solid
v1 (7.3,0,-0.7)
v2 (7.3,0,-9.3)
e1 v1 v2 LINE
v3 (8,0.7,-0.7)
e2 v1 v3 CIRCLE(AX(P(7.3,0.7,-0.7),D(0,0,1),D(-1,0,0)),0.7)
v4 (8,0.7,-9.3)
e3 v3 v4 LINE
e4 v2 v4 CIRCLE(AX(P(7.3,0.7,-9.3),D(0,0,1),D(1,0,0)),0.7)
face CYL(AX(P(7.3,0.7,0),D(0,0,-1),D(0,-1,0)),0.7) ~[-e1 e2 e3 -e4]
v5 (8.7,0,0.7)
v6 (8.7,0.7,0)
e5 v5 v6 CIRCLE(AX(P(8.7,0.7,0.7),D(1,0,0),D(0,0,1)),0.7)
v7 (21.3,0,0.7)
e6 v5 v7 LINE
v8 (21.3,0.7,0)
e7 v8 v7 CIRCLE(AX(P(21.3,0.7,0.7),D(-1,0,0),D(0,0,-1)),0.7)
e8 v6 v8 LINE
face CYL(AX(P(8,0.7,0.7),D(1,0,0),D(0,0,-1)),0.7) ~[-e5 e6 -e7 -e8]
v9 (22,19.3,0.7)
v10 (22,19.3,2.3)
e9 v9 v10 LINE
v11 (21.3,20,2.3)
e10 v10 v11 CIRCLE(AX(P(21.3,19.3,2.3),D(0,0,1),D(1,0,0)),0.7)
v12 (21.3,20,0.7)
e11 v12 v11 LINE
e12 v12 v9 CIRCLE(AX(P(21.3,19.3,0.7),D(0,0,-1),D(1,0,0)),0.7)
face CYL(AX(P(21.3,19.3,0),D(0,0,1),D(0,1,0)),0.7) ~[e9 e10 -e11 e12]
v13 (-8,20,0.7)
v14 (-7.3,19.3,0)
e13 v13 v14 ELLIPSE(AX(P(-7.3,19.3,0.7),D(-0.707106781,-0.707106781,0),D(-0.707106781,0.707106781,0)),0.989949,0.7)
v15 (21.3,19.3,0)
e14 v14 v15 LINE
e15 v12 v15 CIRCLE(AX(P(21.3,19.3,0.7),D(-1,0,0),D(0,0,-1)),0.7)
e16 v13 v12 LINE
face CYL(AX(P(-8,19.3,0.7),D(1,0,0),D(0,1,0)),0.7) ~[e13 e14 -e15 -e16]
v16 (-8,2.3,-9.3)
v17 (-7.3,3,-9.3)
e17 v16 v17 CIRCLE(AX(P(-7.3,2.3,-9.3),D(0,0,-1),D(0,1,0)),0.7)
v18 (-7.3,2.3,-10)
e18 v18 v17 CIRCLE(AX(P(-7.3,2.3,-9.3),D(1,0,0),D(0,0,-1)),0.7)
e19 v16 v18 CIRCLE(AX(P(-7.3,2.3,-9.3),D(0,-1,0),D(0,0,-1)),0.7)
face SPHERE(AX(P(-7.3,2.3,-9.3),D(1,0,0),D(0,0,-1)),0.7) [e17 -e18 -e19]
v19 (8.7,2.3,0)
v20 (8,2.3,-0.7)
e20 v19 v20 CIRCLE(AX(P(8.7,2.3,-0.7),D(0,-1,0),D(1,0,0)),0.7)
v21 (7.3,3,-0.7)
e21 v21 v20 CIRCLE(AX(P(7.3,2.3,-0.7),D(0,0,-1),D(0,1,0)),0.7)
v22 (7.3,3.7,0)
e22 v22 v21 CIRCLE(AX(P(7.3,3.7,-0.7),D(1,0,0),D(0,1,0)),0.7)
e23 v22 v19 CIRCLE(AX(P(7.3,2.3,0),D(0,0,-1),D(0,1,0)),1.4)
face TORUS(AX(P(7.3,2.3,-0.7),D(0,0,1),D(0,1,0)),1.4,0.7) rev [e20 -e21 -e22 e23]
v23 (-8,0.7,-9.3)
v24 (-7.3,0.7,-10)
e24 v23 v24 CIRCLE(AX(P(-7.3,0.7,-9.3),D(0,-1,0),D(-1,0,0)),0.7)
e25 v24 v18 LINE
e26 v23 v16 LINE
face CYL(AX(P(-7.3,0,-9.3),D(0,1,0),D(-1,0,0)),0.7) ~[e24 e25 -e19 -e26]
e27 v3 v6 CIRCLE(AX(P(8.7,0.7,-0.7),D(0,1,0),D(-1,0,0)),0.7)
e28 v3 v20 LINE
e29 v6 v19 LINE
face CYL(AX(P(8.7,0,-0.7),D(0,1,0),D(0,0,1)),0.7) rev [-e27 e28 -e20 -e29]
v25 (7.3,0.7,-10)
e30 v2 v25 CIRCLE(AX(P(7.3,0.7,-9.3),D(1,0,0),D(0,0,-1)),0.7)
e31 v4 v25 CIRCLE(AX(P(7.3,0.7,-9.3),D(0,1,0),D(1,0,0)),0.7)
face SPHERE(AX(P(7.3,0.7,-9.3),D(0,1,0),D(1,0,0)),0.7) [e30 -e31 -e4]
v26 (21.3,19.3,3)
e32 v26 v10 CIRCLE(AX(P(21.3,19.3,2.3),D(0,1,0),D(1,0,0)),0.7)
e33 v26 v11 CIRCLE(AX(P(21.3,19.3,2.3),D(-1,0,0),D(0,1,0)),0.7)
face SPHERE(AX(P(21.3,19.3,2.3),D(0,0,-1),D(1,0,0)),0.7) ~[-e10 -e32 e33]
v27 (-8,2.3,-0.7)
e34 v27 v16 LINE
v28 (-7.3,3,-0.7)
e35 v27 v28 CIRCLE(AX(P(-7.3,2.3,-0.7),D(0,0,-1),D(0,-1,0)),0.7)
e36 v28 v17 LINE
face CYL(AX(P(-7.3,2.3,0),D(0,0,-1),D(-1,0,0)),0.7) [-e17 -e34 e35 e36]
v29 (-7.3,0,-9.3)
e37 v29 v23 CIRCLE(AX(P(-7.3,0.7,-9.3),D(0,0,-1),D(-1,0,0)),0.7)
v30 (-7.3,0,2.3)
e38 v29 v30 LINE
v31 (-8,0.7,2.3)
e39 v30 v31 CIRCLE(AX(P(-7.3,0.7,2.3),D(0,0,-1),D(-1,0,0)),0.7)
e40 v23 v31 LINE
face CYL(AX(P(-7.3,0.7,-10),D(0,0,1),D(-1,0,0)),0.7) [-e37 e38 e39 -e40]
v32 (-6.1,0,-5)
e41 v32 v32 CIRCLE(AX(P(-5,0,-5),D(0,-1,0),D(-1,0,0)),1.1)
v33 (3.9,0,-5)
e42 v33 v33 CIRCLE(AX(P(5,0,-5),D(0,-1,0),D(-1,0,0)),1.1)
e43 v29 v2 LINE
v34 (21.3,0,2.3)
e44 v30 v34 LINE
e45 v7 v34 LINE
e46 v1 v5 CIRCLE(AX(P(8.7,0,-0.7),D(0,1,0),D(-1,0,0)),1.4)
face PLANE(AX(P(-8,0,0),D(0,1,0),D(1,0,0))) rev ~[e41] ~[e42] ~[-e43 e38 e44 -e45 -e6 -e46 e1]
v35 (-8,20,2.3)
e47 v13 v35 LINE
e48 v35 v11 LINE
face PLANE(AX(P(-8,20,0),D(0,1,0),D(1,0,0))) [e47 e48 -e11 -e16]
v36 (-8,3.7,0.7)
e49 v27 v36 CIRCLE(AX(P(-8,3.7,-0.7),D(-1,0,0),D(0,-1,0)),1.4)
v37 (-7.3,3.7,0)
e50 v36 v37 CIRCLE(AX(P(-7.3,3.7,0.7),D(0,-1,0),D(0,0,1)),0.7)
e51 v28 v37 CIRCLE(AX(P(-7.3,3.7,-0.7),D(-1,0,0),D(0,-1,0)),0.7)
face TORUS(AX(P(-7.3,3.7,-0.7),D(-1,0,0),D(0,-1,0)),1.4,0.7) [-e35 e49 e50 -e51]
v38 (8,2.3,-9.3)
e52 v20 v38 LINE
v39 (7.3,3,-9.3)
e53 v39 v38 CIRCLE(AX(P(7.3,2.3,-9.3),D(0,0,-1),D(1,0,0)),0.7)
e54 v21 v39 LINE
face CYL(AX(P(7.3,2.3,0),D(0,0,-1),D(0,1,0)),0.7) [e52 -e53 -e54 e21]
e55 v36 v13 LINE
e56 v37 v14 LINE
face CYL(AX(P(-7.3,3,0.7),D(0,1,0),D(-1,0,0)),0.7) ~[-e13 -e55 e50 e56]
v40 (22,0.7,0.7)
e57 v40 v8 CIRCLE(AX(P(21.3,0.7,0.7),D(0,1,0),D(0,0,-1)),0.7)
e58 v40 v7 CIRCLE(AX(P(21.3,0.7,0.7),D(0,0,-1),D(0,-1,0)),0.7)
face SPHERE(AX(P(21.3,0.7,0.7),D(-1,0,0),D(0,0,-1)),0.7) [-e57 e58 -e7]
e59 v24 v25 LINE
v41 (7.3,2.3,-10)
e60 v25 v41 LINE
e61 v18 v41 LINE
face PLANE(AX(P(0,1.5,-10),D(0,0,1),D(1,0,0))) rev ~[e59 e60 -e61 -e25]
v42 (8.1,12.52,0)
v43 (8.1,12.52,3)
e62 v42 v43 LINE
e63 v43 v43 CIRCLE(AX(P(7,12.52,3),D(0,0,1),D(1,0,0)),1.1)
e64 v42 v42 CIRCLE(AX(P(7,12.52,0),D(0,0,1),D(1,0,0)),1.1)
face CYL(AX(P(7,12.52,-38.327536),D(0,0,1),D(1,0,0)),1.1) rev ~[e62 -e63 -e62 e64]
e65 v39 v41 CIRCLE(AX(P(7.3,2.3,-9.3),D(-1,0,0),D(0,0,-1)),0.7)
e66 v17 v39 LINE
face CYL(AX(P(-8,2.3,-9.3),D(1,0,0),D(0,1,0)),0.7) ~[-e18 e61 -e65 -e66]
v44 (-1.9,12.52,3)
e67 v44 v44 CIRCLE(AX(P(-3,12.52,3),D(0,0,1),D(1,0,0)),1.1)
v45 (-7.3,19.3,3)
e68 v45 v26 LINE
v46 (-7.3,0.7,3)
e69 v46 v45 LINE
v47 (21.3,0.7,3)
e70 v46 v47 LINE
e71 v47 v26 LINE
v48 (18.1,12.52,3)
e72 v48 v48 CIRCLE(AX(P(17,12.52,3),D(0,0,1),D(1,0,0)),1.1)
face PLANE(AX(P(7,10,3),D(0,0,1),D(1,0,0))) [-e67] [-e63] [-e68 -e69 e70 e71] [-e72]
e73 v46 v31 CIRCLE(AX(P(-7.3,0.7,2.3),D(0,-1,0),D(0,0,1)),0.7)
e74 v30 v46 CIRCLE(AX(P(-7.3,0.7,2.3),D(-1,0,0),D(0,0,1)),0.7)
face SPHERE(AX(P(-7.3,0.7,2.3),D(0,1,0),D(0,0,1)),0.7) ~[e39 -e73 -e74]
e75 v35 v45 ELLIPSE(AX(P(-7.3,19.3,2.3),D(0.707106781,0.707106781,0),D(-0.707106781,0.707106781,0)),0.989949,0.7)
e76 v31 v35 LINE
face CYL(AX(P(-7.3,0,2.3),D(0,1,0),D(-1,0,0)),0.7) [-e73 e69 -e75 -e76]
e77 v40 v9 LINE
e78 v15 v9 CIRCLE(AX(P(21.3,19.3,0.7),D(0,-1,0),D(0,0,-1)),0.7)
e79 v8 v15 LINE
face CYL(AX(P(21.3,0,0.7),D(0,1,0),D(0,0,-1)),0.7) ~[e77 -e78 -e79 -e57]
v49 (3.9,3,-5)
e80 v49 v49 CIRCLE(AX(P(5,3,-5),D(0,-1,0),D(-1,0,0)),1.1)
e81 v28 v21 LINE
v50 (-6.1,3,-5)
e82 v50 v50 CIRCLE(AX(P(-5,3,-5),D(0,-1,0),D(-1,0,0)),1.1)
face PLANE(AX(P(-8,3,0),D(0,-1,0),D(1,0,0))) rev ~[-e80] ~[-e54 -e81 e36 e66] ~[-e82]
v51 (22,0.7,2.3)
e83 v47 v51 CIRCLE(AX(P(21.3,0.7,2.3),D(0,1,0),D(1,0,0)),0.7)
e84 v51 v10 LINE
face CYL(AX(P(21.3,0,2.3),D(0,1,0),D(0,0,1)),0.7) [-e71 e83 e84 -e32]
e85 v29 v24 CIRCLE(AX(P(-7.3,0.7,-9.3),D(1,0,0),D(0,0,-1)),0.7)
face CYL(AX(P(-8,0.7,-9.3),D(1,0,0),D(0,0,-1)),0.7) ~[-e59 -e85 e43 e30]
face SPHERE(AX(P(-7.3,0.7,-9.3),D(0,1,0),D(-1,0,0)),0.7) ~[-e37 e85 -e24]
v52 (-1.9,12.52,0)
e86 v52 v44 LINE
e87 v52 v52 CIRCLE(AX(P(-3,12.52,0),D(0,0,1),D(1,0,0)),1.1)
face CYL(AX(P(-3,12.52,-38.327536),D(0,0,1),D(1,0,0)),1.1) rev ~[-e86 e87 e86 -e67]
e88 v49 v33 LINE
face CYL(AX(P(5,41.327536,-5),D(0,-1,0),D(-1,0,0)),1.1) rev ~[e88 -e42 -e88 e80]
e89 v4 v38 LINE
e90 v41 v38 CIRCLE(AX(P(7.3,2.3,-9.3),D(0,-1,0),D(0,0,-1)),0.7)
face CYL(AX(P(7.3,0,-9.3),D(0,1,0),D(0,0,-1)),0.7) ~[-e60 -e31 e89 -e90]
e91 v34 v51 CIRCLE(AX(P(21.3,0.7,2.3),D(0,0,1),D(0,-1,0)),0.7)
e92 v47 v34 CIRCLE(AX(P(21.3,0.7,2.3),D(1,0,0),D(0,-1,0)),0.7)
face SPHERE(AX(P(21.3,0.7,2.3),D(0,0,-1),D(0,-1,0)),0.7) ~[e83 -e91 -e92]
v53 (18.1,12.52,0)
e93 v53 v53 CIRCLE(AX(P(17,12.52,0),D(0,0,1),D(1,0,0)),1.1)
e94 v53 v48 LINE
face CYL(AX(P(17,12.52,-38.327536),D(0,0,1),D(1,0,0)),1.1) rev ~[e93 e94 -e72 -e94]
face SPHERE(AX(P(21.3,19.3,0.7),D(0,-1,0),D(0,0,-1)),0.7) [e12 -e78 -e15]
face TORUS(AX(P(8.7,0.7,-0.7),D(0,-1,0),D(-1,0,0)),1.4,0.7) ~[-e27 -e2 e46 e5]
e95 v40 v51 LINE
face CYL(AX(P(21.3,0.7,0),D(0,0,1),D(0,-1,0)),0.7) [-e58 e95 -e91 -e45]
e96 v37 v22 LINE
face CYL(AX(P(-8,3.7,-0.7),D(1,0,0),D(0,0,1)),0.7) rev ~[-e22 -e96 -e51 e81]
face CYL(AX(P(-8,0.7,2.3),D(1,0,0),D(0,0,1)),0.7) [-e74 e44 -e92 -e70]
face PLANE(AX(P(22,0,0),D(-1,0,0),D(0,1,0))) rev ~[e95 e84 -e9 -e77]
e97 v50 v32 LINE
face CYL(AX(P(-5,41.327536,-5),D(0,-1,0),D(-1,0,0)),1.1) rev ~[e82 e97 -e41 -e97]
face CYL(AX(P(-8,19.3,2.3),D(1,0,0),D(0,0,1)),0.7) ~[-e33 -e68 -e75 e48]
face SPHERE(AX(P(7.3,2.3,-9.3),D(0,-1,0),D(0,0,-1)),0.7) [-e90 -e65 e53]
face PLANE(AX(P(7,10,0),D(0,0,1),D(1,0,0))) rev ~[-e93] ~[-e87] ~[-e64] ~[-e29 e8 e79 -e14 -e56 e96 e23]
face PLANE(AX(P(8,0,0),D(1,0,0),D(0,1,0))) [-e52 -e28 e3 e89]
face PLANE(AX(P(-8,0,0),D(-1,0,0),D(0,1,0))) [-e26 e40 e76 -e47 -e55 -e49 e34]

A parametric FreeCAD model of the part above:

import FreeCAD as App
import Part
import Sketcher


def edges_at(feature, points):
    """Names of the edges that pass closest to the given points."""
    edges = feature.Shape.Edges
    near = lambda p: min(range(len(edges)), key=lambda i: edges[i].distToShape(Part.Vertex(*p))[0])
    return sorted({f"Edge{near(p) + 1}" for p in points})

doc = App.newDocument("Part")
body = doc.addObject("PartDesign::Body", "Body")

sketch1 = doc.addObject("Sketcher::SketchObject", "Sketch")
body.addObject(sketch1)
sketch1.AttachmentSupport = (doc.XY_Plane, [""])
sketch1.MapMode = "FlatFace"
sketch1.addGeometry([
    Part.LineSegment(App.Vector(-8, 3, 0), App.Vector(-8, 0, 0)),
    Part.LineSegment(App.Vector(-8, 0, 0), App.Vector(8, 0, 0)),
    Part.LineSegment(App.Vector(8, 0, 0), App.Vector(8, 3, 0)),
    Part.LineSegment(App.Vector(8, 3, 0), App.Vector(-8, 3, 0)),
], False)
sketch1.addConstraint([
    Sketcher.Constraint("Coincident", 0, 2, 1, 1),
    Sketcher.Constraint("Coincident", 1, 2, 2, 1),
    Sketcher.Constraint("Coincident", 2, 2, 3, 1),
    Sketcher.Constraint("Coincident", 3, 2, 0, 1),
    Sketcher.Constraint("Vertical", 0),
    Sketcher.Constraint("Horizontal", 1),
    Sketcher.Constraint("Vertical", 2),
    Sketcher.Constraint("Horizontal", 3),
    Sketcher.Constraint("Symmetric", 0, 2, 1, 2, -1, 1),
    Sketcher.Constraint("DistanceX", 1, 1, 1, 2, 16.0),
    Sketcher.Constraint("DistanceY", 0, 2, 0, 1, 3.0),
])
pad1 = doc.addObject("PartDesign::Pad", "Pad")
body.addObject(pad1)
pad1.Profile = sketch1
pad1.Length = 10
pad1.Reversed = True

sketch2 = doc.addObject("Sketcher::SketchObject", "Sketch001")
body.addObject(sketch2)
sketch2.AttachmentSupport = (doc.XY_Plane, [""])
sketch2.MapMode = "FlatFace"
sketch2.addGeometry([
    Part.LineSegment(App.Vector(-8, 20, 0), App.Vector(-8, 0, 0)),
    Part.LineSegment(App.Vector(-8, 0, 0), App.Vector(22, 0, 0)),
    Part.LineSegment(App.Vector(22, 0, 0), App.Vector(22, 20, 0)),
    Part.LineSegment(App.Vector(22, 20, 0), App.Vector(-8, 20, 0)),
], False)
sketch2.addConstraint([
    Sketcher.Constraint("Coincident", 0, 2, 1, 1),
    Sketcher.Constraint("Coincident", 1, 2, 2, 1),
    Sketcher.Constraint("Coincident", 2, 2, 3, 1),
    Sketcher.Constraint("Coincident", 3, 2, 0, 1),
    Sketcher.Constraint("Vertical", 0),
    Sketcher.Constraint("Horizontal", 1),
    Sketcher.Constraint("Vertical", 2),
    Sketcher.Constraint("Horizontal", 3),
    Sketcher.Constraint("PointOnObject", 0, 2, -1),
    Sketcher.Constraint("DistanceX", 1, 1, 1, 2, 30.0),
    Sketcher.Constraint("DistanceY", 0, 2, 0, 1, 20.0),
    Sketcher.Constraint("DistanceX", 0, 2, -1, 1, 8.0),
])
pad2 = doc.addObject("PartDesign::Pad", "Pad001")
body.addObject(pad2)
pad2.Profile = sketch2
pad2.Length = 3

sketch3 = doc.addObject("Sketcher::SketchObject", "Sketch002")
body.addObject(sketch3)
sketch3.AttachmentSupport = (doc.XZ_Plane, [""])
sketch3.MapMode = "FlatFace"
sketch3.AttachmentOffset = App.Placement(App.Vector(0, 0, -3), App.Rotation())
sketch3.addGeometry([
    Part.Circle(App.Vector(-5, -5, 0), App.Vector(0, 0, 1), 1.1),
    Part.Circle(App.Vector(5, -5, 0), App.Vector(0, 0, 1), 1.1),
], False)
sketch3.addConstraint([
    Sketcher.Constraint("Equal", 0, 1),
    Sketcher.Constraint("Symmetric", 0, 3, 1, 3, -2),
    Sketcher.Constraint("Diameter", 0, 2.2),
    Sketcher.Constraint("DistanceX", 0, 3, -1, 1, 5.0),
    Sketcher.Constraint("DistanceY", 0, 3, -1, 1, 5.0),
])
doc.recompute()
hole = doc.addObject("PartDesign::Hole", "Hole")
body.addObject(hole)
hole.Profile = sketch3
hole.ThreadType = "None"
hole.Diameter = 2.2
hole.DepthType = "ThroughAll"
hole.Reversed = True
doc.recompute()

fillet = doc.addObject("PartDesign::Fillet", "Fillet")
body.addObject(fillet)
fillet.Base = (hole, edges_at(hole, [
    (8, 1.5, -10),
    (-8, 11.5, 0),
    (15, 0, 0),
    (22, 10, 0),
    (22, 0, 1.5),
    (7, 20, 0),
    (22, 20, 1.5),
    (-8, 10, 3),
    (7, 0, 3),
    (0, 3, -10),
    (22, 10, 3),
    (7, 20, 3),
    (-8, 1.5, -10),
    (0, 3, 0),
    (8, 1.5, 0),
    (-8, 3, -5),
    (8, 3, -5),
    (8, 0, -5),
    (-8, 0, -3.5),
    (0, 0, -10),
]))
fillet.Radius = 0.7

sketch4 = doc.addObject("Sketcher::SketchObject", "Sketch003")
body.addObject(sketch4)
sketch4.AttachmentSupport = (doc.XY_Plane, [""])
sketch4.MapMode = "FlatFace"
sketch4.addGeometry([
    Part.Circle(App.Vector(17, 12.5, 0), App.Vector(0, 0, 1), 1.1),
    Part.Circle(App.Vector(7, 12.5, 0), App.Vector(0, 0, 1), 1.1),
    Part.Circle(App.Vector(-3, 12.5, 0), App.Vector(0, 0, 1), 1.1),
], False)
sketch4.addConstraint([
    Sketcher.Constraint("Equal", 0, 1),
    Sketcher.Constraint("Equal", 1, 2),
    Sketcher.Constraint("Horizontal", 0, 3, 1, 3),
    Sketcher.Constraint("Horizontal", 1, 3, 2, 3),
    Sketcher.Constraint("Diameter", 0, 2.2),
    Sketcher.Constraint("DistanceX", -1, 1, 0, 3, 17.0),
    Sketcher.Constraint("DistanceX", -1, 1, 1, 3, 7.0),
    Sketcher.Constraint("DistanceX", 2, 3, -1, 1, 3.0),
    Sketcher.Constraint("DistanceY", -1, 1, 0, 3, 12.52),
])
doc.recompute()
hole2 = doc.addObject("PartDesign::Hole", "Hole001")
body.addObject(hole2)
hole2.Profile = sketch4
hole2.ThreadType = "None"
hole2.Diameter = 2.2
hole2.DepthType = "ThroughAll"
hole2.Reversed = True

doc.recompute()
